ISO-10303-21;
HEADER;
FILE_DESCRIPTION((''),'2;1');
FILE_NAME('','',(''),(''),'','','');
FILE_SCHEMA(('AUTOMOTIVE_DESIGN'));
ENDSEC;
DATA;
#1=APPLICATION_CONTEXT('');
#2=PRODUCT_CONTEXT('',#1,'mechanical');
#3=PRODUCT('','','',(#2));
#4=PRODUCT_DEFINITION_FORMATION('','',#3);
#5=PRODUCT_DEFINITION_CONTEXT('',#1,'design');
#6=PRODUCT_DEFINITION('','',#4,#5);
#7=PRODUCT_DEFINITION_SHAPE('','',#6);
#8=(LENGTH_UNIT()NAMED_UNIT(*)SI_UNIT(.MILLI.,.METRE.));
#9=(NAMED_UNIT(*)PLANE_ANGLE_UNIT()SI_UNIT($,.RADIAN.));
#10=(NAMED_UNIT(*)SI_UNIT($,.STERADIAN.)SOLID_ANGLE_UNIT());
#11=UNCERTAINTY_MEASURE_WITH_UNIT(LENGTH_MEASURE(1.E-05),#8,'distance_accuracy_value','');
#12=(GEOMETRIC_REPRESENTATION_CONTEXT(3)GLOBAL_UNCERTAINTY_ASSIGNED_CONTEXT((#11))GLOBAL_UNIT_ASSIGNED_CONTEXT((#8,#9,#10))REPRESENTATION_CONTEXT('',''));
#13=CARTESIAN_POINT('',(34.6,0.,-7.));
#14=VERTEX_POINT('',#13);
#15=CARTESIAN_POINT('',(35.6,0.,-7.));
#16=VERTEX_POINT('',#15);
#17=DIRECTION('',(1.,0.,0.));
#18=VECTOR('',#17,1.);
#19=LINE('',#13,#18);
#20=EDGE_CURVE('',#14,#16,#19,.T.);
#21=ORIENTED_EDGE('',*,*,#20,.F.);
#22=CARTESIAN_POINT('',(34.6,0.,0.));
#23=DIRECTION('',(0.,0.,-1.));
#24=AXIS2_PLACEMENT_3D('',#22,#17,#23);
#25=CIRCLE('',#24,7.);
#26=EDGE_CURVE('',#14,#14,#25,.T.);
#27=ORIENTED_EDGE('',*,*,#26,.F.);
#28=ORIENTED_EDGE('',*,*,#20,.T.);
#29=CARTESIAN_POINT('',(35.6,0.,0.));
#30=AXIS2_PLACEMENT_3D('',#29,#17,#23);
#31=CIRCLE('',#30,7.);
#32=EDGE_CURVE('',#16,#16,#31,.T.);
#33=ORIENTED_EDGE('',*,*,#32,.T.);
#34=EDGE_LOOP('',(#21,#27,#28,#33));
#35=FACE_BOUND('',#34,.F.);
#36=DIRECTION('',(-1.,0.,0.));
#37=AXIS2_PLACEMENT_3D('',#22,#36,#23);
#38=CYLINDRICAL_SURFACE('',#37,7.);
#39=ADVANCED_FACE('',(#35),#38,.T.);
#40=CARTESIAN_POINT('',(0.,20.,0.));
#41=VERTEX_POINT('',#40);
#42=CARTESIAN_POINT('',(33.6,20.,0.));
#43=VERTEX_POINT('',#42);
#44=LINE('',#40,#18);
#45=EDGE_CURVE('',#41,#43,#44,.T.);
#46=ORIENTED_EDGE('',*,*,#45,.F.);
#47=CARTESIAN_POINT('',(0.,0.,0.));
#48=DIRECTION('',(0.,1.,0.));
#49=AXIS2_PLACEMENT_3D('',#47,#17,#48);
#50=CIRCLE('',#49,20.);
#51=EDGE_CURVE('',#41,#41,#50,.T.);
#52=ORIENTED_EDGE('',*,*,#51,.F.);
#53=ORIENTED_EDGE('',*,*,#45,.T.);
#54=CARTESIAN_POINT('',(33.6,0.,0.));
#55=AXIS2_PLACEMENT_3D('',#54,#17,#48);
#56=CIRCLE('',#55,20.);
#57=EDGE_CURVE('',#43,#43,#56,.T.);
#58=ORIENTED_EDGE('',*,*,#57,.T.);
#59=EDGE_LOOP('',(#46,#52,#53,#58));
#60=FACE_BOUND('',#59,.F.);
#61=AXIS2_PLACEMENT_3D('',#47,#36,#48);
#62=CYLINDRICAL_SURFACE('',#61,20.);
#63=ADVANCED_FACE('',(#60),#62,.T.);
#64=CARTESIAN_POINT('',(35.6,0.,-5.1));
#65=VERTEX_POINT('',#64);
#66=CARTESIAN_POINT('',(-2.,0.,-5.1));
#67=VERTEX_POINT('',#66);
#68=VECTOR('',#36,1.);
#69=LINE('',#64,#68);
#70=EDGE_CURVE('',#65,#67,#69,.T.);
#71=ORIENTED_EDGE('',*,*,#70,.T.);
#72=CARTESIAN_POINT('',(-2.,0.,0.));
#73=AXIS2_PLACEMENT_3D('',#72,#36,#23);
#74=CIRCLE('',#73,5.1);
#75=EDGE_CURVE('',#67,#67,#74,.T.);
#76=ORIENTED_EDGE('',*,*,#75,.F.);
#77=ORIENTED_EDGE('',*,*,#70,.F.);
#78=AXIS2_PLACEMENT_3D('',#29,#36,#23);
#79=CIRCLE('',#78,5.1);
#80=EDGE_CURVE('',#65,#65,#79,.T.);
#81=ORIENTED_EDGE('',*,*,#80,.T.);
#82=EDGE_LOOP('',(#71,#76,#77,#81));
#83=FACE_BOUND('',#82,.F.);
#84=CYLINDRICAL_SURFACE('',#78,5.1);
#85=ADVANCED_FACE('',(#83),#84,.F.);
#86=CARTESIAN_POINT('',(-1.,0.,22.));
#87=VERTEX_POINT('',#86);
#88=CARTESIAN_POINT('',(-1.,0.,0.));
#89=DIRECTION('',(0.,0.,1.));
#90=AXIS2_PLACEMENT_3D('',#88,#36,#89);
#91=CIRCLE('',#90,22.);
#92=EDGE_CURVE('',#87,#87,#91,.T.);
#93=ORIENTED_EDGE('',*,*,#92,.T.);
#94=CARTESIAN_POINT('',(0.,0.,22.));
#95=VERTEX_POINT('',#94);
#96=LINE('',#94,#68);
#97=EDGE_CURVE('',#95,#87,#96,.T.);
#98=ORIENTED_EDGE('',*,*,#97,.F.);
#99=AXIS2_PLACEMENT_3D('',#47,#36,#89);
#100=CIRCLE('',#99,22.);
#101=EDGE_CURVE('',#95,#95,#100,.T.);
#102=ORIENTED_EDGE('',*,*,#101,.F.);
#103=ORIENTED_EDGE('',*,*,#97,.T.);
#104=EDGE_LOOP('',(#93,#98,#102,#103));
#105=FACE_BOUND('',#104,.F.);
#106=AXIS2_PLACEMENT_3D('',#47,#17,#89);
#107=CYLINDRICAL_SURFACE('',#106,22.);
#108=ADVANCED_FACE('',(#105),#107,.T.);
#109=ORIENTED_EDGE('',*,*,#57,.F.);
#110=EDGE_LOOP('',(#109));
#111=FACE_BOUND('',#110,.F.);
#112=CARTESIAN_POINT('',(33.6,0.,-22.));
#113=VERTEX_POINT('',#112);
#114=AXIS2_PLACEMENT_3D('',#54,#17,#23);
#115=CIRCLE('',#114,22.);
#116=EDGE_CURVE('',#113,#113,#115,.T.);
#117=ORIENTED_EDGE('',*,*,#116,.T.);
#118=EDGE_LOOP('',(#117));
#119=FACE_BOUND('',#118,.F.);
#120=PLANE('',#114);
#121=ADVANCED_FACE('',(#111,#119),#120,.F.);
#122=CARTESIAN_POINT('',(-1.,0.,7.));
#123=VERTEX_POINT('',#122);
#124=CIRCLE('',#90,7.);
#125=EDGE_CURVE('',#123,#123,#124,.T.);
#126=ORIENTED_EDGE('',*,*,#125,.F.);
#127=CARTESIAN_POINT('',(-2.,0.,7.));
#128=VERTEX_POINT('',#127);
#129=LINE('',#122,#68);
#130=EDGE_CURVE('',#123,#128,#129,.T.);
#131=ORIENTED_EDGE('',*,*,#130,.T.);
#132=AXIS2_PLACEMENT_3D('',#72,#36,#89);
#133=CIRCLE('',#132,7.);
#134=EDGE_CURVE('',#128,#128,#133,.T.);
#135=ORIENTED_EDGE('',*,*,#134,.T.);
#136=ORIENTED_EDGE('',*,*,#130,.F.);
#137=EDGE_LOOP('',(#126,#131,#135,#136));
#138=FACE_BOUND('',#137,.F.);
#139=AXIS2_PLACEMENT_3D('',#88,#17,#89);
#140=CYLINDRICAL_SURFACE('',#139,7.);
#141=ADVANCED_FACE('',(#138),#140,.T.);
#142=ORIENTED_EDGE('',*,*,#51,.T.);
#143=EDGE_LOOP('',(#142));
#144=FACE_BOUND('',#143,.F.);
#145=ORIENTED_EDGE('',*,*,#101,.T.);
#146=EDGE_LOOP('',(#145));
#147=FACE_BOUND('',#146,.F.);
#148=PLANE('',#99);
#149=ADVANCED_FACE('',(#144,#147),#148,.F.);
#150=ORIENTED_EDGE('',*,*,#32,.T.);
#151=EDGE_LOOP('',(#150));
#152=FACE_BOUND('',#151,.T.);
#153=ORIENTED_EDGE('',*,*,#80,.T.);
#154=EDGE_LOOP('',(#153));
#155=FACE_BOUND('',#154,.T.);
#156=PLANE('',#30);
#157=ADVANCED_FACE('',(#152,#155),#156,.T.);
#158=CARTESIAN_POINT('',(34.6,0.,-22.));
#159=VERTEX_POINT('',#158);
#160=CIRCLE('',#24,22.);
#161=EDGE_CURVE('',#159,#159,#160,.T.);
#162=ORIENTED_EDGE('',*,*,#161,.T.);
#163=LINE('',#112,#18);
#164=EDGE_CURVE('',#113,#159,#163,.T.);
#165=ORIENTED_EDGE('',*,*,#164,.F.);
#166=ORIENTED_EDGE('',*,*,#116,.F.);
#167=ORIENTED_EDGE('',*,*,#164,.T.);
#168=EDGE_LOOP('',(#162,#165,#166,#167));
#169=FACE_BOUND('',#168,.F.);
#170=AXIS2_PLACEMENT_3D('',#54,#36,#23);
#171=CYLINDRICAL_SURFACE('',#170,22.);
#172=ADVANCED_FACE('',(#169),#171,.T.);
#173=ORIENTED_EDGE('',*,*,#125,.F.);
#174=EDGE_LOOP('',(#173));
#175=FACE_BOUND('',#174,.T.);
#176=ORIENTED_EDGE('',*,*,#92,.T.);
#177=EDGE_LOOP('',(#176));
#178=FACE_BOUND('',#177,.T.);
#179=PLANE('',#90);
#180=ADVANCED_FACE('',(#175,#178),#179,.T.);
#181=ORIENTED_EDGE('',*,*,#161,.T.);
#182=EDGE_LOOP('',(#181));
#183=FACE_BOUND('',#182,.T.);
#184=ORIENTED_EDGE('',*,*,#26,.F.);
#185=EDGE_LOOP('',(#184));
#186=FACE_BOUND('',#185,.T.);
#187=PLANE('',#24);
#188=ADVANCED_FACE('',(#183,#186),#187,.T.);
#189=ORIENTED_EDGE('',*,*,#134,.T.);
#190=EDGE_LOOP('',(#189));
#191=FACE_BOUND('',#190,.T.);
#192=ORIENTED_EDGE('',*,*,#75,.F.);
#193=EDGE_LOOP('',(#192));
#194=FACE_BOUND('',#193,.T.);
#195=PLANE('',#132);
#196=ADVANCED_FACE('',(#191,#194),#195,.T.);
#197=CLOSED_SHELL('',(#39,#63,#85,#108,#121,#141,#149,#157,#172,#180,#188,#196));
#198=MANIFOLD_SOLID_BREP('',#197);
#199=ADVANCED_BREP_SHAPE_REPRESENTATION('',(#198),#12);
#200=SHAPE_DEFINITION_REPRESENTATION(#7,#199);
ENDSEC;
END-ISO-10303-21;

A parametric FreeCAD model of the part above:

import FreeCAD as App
import Part
import Sketcher

doc = App.newDocument("Part")
params = doc.addObject("Spreadsheet::Sheet", "Params")
for row, (alias, value) in enumerate([
    ("sketch1_diameter", "40 mm"),
    ("pad1_length", "33.6 mm"),
    ("sketch2_diameter", "44 mm"),
    ("pad2_length", "1 mm"),
    ("sketch3_diameter", "14 mm"),
    ("pad3_length", "1 mm"),
    ("sketch4_diameter", "44 mm"),
    ("pad4_length", "1 mm"),
    ("sketch5_diameter", "14 mm"),
    ("pad5_length", "1 mm"),
    ("sketch6_diameter", "10.2 mm"),
    ("hole_diameter", "10.2 mm"),
], start=1):
    params.set(f"A{row}", alias)
    params.set(f"B{row}", "=" + value)
    params.setAlias(f"B{row}", alias)

body = doc.addObject("PartDesign::Body", "Body")

# Sketch on YZ plane
sketch1 = doc.addObject("Sketcher::SketchObject", "Sketch")
body.addObject(sketch1)
sketch1.AttachmentSupport = (doc.YZ_Plane, [""])
sketch1.MapMode = "FlatFace"
sketch1.addGeometry(Part.Circle(App.Vector(0, 0, 0), App.Vector(0, 0, 1), 20), False)
sketch1.addConstraint([
    Sketcher.Constraint("Coincident", 0, 3, -1, 1),
    Sketcher.Constraint("Diameter", 0, 40.0),
])
sketch1.setExpression("Constraints[1]", "Params.sketch1_diameter")
pad1 = doc.addObject("PartDesign::Pad", "Pad")
body.addObject(pad1)
pad1.Profile = sketch1
pad1.setExpression("Length", "Params.pad1_length")

# Sketch on YZ plane
sketch2 = doc.addObject("Sketcher::SketchObject", "Sketch001")
body.addObject(sketch2)
sketch2.AttachmentSupport = (doc.YZ_Plane, [""])
sketch2.MapMode = "FlatFace"
sketch2.AttachmentOffset = App.Placement(App.Vector(0, 0, 33.6), App.Rotation())
sketch2.addGeometry(Part.Circle(App.Vector(0, 0, 0), App.Vector(0, 0, 1), 22), False)
sketch2.addConstraint([
    Sketcher.Constraint("Coincident", 0, 3, -1, 1),
    Sketcher.Constraint("Diameter", 0, 44.0),
])
sketch2.setExpression("Constraints[1]", "Params.sketch2_diameter")
pad2 = doc.addObject("PartDesign::Pad", "Pad001")
body.addObject(pad2)
pad2.Profile = sketch2
pad2.setExpression("Length", "Params.pad2_length")

# Sketch on YZ plane
sketch3 = doc.addObject("Sketcher::SketchObject", "Sketch002")
body.addObject(sketch3)
sketch3.AttachmentSupport = (doc.YZ_Plane, [""])
sketch3.MapMode = "FlatFace"
sketch3.AttachmentOffset = App.Placement(App.Vector(0, 0, 34.6), App.Rotation())
sketch3.addGeometry(Part.Circle(App.Vector(0, 0, 0), App.Vector(0, 0, 1), 7), False)
sketch3.addConstraint([
    Sketcher.Constraint("Coincident", 0, 3, -1, 1),
    Sketcher.Constraint("Diameter", 0, 14.0),
])
sketch3.setExpression("Constraints[1]", "Params.sketch3_diameter")
pad3 = doc.addObject("PartDesign::Pad", "Pad002")
body.addObject(pad3)
pad3.Profile = sketch3
pad3.setExpression("Length", "Params.pad3_length")

# Sketch on YZ plane
sketch4 = doc.addObject("Sketcher::SketchObject", "Sketch003")
body.addObject(sketch4)
sketch4.AttachmentSupport = (doc.YZ_Plane, [""])
sketch4.MapMode = "FlatFace"
sketch4.addGeometry(Part.Circle(App.Vector(0, 0, 0), App.Vector(0, 0, 1), 22), False)
sketch4.addConstraint([
    Sketcher.Constraint("Coincident", 0, 3, -1, 1),
    Sketcher.Constraint("Diameter", 0, 44.0),
])
sketch4.setExpression("Constraints[1]", "Params.sketch4_diameter")
pad4 = doc.addObject("PartDesign::Pad", "Pad003")
body.addObject(pad4)
pad4.Profile = sketch4
pad4.setExpression("Length", "Params.pad4_length")
pad4.Reversed = True

# Sketch on YZ plane
sketch5 = doc.addObject("Sketcher::SketchObject", "Sketch004")
body.addObject(sketch5)
sketch5.AttachmentSupport = (doc.YZ_Plane, [""])
sketch5.MapMode = "FlatFace"
sketch5.AttachmentOffset = App.Placement(App.Vector(0, 0, -1), App.Rotation())
sketch5.addGeometry(Part.Circle(App.Vector(0, 0, 0), App.Vector(0, 0, 1), 7), False)
sketch5.addConstraint([
    Sketcher.Constraint("Coincident", 0, 3, -1, 1),
    Sketcher.Constraint("Diameter", 0, 14.0),
])
sketch5.setExpression("Constraints[1]", "Params.sketch5_diameter")
pad5 = doc.addObject("PartDesign::Pad", "Pad004")
body.addObject(pad5)
pad5.Profile = sketch5
pad5.setExpression("Length", "Params.pad5_length")
pad5.Reversed = True

# Sketch on YZ plane
sketch6 = doc.addObject("Sketcher::SketchObject", "Sketch005")
body.addObject(sketch6)
sketch6.AttachmentSupport = (doc.YZ_Plane, [""])
sketch6.MapMode = "FlatFace"
sketch6.AttachmentOffset = App.Placement(App.Vector(0, 0, 35.6), App.Rotation())
sketch6.addGeometry(Part.Circle(App.Vector(0, 0, 0), App.Vector(0, 0, 1), 5), False)
sketch6.addConstraint([
    Sketcher.Constraint("Coincident", 0, 3, -1, 1),
    Sketcher.Constraint("Diameter", 0, 10.2),
])
sketch6.setExpression("Constraints[1]", "Params.sketch6_diameter")
doc.recompute()
hole = doc.addObject("PartDesign::Hole", "Hole")
body.addObject(hole)
hole.Profile = sketch6
hole.ThreadType = "None"
hole.setExpression("Diameter", "Params.hole_diameter")
hole.DepthType = "ThroughAll"

doc.recompute()
